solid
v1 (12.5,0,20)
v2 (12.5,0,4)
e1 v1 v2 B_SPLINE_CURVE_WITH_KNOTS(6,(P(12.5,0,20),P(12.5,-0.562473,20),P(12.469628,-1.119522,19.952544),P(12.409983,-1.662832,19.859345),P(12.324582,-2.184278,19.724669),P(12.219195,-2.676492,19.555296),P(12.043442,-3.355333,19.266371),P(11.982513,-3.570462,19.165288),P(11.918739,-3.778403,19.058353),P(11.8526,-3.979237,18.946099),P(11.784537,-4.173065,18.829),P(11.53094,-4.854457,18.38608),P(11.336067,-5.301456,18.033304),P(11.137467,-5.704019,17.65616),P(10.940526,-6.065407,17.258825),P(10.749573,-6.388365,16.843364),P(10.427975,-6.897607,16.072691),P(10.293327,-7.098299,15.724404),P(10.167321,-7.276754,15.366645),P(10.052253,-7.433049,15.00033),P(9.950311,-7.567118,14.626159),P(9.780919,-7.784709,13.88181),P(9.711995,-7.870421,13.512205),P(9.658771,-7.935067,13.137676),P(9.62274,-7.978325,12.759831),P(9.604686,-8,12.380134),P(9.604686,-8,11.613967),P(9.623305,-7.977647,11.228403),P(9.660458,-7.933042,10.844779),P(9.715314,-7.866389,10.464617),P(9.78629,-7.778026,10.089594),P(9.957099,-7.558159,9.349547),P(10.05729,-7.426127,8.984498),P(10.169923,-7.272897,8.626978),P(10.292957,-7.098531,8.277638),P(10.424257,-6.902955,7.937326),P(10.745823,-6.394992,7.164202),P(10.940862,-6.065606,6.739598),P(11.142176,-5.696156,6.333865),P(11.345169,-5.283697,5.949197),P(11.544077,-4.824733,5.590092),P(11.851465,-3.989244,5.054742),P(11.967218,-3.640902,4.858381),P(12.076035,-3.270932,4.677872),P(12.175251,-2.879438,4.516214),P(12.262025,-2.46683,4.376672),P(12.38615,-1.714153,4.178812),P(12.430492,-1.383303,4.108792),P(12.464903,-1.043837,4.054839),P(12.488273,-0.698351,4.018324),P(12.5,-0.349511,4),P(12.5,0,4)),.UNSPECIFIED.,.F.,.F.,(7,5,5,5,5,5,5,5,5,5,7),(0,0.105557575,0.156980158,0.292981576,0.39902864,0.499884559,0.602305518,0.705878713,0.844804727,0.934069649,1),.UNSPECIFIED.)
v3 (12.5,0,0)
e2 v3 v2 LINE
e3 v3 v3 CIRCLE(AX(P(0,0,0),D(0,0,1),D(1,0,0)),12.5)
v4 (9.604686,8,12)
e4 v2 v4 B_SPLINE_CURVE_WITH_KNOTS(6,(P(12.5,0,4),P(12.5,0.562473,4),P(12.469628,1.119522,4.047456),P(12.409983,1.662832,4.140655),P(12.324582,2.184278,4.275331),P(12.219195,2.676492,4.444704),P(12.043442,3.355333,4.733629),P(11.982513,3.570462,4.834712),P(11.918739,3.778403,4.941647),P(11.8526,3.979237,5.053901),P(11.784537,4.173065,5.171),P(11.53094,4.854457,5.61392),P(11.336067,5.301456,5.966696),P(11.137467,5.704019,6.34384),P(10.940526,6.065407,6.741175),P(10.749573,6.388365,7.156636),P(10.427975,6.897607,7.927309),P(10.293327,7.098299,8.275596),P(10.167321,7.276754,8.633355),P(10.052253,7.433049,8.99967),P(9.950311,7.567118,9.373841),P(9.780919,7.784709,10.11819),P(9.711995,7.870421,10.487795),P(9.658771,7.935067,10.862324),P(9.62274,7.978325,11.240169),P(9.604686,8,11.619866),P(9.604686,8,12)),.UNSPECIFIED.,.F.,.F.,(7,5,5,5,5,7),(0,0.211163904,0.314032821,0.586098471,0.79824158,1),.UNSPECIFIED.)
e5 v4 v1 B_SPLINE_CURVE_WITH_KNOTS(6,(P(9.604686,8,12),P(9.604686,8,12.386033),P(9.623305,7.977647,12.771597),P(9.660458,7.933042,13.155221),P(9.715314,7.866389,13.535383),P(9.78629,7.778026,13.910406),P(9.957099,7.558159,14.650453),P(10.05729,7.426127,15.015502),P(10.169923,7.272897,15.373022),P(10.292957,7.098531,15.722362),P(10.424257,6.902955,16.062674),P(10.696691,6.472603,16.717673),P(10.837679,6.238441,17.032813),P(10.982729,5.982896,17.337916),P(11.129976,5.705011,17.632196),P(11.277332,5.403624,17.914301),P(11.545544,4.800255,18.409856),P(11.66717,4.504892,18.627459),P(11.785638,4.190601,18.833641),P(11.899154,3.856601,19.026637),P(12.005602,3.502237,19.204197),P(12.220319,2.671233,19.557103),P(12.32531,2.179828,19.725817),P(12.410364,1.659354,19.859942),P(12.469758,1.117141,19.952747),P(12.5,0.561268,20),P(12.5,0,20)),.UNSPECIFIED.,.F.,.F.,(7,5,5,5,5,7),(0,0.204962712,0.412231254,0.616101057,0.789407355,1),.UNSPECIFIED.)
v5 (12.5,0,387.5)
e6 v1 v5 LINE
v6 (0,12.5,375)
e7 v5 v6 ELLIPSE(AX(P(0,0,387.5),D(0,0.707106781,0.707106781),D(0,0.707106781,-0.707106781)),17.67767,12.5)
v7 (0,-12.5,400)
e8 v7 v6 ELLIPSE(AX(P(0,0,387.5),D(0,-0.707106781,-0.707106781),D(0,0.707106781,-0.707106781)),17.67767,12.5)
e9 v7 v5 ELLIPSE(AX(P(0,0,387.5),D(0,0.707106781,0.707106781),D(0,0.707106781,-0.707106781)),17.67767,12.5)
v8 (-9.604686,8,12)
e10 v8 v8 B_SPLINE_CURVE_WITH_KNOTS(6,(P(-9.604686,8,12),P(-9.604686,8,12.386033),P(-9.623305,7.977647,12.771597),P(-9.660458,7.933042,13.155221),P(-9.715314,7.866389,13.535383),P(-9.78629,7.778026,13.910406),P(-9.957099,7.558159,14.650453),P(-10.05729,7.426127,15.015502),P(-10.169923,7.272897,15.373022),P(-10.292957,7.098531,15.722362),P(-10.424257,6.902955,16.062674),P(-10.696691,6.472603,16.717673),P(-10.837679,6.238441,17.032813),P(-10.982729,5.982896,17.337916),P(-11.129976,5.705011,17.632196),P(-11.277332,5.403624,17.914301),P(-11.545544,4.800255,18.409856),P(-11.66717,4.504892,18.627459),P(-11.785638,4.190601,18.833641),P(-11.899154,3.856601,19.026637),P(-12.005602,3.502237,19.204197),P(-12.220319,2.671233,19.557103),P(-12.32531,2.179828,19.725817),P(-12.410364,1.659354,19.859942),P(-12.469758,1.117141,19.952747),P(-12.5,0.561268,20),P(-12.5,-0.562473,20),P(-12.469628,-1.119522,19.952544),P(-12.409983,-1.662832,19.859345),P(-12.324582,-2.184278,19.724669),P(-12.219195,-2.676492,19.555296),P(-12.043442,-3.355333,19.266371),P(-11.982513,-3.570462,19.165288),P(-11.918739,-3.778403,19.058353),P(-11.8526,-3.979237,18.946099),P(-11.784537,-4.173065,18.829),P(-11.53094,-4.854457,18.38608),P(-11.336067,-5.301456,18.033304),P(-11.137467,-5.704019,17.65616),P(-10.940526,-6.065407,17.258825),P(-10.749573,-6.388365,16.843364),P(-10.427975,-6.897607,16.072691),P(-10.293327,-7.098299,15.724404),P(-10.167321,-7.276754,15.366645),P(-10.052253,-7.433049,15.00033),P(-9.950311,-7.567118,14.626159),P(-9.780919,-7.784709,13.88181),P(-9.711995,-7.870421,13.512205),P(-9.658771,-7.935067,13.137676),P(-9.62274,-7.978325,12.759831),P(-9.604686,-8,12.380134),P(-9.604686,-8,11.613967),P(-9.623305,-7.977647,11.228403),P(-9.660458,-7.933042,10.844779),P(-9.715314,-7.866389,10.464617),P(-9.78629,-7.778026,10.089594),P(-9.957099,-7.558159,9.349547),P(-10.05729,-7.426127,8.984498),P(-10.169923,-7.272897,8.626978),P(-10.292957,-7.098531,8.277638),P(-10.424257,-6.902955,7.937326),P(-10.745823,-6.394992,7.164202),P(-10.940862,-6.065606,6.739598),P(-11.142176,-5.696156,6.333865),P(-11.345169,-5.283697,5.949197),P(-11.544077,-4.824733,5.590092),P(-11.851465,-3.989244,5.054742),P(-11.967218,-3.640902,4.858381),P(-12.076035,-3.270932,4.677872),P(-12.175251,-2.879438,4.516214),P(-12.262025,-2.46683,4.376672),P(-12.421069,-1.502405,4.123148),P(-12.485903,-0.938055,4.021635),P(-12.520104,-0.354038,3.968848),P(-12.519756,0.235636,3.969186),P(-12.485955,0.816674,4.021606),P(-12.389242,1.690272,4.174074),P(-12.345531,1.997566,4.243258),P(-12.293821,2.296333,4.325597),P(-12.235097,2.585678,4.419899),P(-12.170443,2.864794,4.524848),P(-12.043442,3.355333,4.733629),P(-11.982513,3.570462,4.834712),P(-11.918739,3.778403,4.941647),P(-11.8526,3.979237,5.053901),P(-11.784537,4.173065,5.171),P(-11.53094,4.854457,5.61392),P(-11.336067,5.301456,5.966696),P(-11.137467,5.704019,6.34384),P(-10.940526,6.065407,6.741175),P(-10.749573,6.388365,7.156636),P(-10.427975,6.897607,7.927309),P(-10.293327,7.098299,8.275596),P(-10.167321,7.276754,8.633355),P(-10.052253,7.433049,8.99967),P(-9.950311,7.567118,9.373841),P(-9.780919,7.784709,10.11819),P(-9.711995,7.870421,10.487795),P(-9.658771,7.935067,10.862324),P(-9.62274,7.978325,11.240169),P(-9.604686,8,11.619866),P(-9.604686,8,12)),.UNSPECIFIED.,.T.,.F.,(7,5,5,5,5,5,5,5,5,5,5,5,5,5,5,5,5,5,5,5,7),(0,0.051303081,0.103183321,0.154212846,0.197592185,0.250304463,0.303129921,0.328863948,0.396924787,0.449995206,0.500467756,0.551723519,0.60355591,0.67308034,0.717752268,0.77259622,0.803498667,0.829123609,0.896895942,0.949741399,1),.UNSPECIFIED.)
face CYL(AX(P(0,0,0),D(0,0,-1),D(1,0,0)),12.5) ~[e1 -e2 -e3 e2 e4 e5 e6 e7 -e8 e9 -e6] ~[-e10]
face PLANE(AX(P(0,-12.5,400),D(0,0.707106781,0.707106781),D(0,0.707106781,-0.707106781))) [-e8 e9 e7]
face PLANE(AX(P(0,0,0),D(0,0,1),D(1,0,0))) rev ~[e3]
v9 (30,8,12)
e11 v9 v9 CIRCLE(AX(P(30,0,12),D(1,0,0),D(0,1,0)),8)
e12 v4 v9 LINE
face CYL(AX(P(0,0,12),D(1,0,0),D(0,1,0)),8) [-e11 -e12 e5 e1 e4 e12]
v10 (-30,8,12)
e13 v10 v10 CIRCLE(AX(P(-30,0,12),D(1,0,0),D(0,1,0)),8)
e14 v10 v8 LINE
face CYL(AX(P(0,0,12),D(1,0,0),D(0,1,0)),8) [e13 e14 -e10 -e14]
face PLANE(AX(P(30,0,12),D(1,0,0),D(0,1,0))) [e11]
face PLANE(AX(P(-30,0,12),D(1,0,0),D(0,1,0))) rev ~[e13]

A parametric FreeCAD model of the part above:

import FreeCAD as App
import Part
import Sketcher

V = App.Vector
Q = App.Units.Quantity


def add_polygon(sketch, points):
    """Adds a closed chain of lines whose ends are joined by coincident constraints."""
    first, n = sketch.GeometryCount, len(points)
    for a, b in zip(points, points[1:] + points[:1]):
        sketch.addGeometry(Part.LineSegment(App.Vector(*a, 0), App.Vector(*b, 0)), False)
    for i in range(n):
        sketch.addConstraint(Sketcher.Constraint("Coincident", first + i, 2, first + (i + 1) % n, 1))

doc = App.newDocument("Part")
body = doc.addObject("PartDesign::Body", "Body")

# Sketch on XY plane
sketch1 = body.newObject("Sketcher::SketchObject", "Sketch")
sketch1.AttachmentSupport = (doc.getObject("XY_Plane"), [""])
sketch1.MapMode = "FlatFace"
sketch1.addGeometry(Part.Circle(V(0, 0, 0), V(0, 0, 1), 12), False)
sketch1.addConstraint([
    Sketcher.Constraint("Coincident", 0, 3, -1, 1),
    Sketcher.Constraint("Diameter", 0, Q("25 mm")),
])
pad1 = body.newObject("PartDesign::Pad", "Pad")
pad1.Profile = sketch1
pad1.Length = 400

# Sketch on YZ plane
sketch2 = body.newObject("Sketcher::SketchObject", "Sketch001")
sketch2.AttachmentSupport = (doc.getObject("YZ_Plane"), [""])
sketch2.MapMode = "FlatFace"
sketch2.addGeometry(Part.Circle(V(0, 12, 0), V(0, 0, 1), 8), False)
sketch2.addConstraint([
    Sketcher.Constraint("PointOnObject", 0, 3, -2),
    Sketcher.Constraint("Diameter", 0, Q("16 mm")),
    Sketcher.Constraint("DistanceY", -1, 1, 0, 3, Q("12 mm")),
])
pad2 = body.newObject("PartDesign::Pad", "Pad001")
pad2.Profile = sketch2
pad2.Length = 60
pad2.Midplane = True

# Sketch on YZ plane
sketch3 = body.newObject("Sketcher::SketchObject", "Sketch002")
sketch3.AttachmentSupport = (doc.getObject("YZ_Plane"), [""])
sketch3.MapMode = "FlatFace"
add_polygon(sketch3, [(12, 400), (-12, 400), (12, 375)])  # lines 0-2
sketch3.addConstraint([
    Sketcher.Constraint("Horizontal", 0),
    Sketcher.Constraint("Vertical", 2),
    Sketcher.Constraint("Equal", 0, 2),
    Sketcher.Constraint("DistanceX", 0, 2, 0, 1, Q("25 mm")),
    Sketcher.Constraint("DistanceY", -1, 1, 0, 2, Q("400 mm")),
    Sketcher.Constraint("DistanceX", 0, 2, -1, 1, Q("12.5 mm")),
])
pocket1 = body.newObject("PartDesign::Pocket", "Pocket")
pocket1.Profile = sketch3
pocket1.Type = "ThroughAll"
pocket1.Midplane = True

doc.recompute()
